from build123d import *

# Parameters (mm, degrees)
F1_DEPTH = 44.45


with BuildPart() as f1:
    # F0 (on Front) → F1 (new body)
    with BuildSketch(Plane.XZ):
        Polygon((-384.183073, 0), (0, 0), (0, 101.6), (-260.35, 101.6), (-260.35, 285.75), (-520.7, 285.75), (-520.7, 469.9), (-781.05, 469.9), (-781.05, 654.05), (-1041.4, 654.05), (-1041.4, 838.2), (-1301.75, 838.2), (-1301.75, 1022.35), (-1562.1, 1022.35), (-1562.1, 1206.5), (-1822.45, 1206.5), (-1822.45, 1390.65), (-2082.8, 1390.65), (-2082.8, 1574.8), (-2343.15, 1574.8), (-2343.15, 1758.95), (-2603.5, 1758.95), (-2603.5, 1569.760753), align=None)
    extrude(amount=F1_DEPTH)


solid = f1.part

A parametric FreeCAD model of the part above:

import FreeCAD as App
import Part
import Sketcher
Q = App.Units.Quantity


def add_polygon(sketch, points):
    """Adds a closed chain of lines whose ends are joined by coincident constraints."""
    first, n = sketch.GeometryCount, len(points)
    for a, b in zip(points, points[1:] + points[:1]):
        sketch.addGeometry(Part.LineSegment(App.Vector(*a, 0), App.Vector(*b, 0)), False)
    for i in range(n):
        sketch.addConstraint(Sketcher.Constraint("Coincident", first + i, 2, first + (i + 1) % n, 1))

doc = App.newDocument("Part")
params = doc.addObject("Spreadsheet::Sheet", "Params")
for row, (alias, value) in enumerate([
    ("sketch1_height", "4 in"),
    ("pad1_length", "1.75 in"),
], start=1):
    params.set(f"A{row}", alias)
    params.set(f"B{row}", "=" + value)
    params.setAlias(f"B{row}", alias)

body = doc.addObject("PartDesign::Body", "Body")

# Sketch on XZ plane
sketch1 = doc.addObject("Sketcher::SketchObject", "Sketch")
body.addObject(sketch1)
sketch1.AttachmentSupport = (doc.XZ_Plane, [""])
sketch1.MapMode = "FlatFace"
add_polygon(sketch1, [(-384, 0), (0, 0), (0, 102), (-260, 102), (-260, 286), (-521, 286), (-521, 470), (-781, 470), (-781, 654), (-1041, 654), (-1041, 838), (-1302, 838), (-1302, 1022), (-1562, 1022), (-1562, 1206), (-1822, 1206), (-1822, 1391), (-2083, 1391), (-2083, 1575), (-2343, 1575), (-2343, 1759), (-2604, 1759), (-2604, 1570)])  # lines 0-22
sketch1.addConstraint([
    Sketcher.Constraint("Horizontal", 0),
    Sketcher.Constraint("Vertical", 1),
    Sketcher.Constraint("Horizontal", 2),
    Sketcher.Constraint("Vertical", 3),
    Sketcher.Constraint("Horizontal", 4),
    Sketcher.Constraint("Vertical", 5),
    Sketcher.Constraint("Horizontal", 6),
    Sketcher.Constraint("Vertical", 7),
    Sketcher.Constraint("Horizontal", 8),
    Sketcher.Constraint("Vertical", 9),
    Sketcher.Constraint("Horizontal", 10),
    Sketcher.Constraint("Vertical", 11),
    Sketcher.Constraint("Horizontal", 12),
    Sketcher.Constraint("Vertical", 13),
    Sketcher.Constraint("Horizontal", 14),
    Sketcher.Constraint("Vertical", 15),
    Sketcher.Constraint("Horizontal", 16),
    Sketcher.Constraint("Vertical", 17),
    Sketcher.Constraint("Horizontal", 18),
    Sketcher.Constraint("Vertical", 19),
    Sketcher.Constraint("Horizontal", 20),
    Sketcher.Constraint("Vertical", 21),
    Sketcher.Constraint("Coincident", 0, 2, -1, 1),
    Sketcher.Constraint("Equal", 2, 4),
    Sketcher.Constraint("Equal", 4, 6),
    Sketcher.Constraint("Equal", 6, 8),
    Sketcher.Constraint("Equal", 8, 10),
    Sketcher.Constraint("Equal", 10, 12),
    Sketcher.Constraint("Equal", 12, 14),
    Sketcher.Constraint("Equal", 14, 16),
    Sketcher.Constraint("Equal", 16, 18),
    Sketcher.Constraint("Equal", 18, 20),
    Sketcher.Constraint("Equal", 3, 5),
    Sketcher.Constraint("Equal", 5, 7),
    Sketcher.Constraint("Equal", 7, 9),
    Sketcher.Constraint("Equal", 9, 11),
    Sketcher.Constraint("Equal", 11, 13),
    Sketcher.Constraint("Equal", 13, 15),
    Sketcher.Constraint("Equal", 15, 17),
    Sketcher.Constraint("Equal", 17, 19),
    Sketcher.Constraint("DistanceY", 1, 1, 1, 2, Q("4 in")),
    Sketcher.Constraint("DistanceX", 8, 2, -1, 1, Q("41 in")),
    Sketcher.Constraint("DistanceY", -1, 1, 9, 2, Q("33 in")),
    Sketcher.Constraint("DistanceX", 0, 1, 0, 2, 384.183073),
    Sketcher.Constraint("DistanceY", 21, 2, 21, 1, 189.189247),
])
sketch1.setExpression("Constraints[63]", "Params.sketch1_height")
pad1 = doc.addObject("PartDesign::Pad", "Pad")
body.addObject(pad1)
pad1.Profile = sketch1
pad1.setExpression("Length", "Params.pad1_length")

doc.recompute()
